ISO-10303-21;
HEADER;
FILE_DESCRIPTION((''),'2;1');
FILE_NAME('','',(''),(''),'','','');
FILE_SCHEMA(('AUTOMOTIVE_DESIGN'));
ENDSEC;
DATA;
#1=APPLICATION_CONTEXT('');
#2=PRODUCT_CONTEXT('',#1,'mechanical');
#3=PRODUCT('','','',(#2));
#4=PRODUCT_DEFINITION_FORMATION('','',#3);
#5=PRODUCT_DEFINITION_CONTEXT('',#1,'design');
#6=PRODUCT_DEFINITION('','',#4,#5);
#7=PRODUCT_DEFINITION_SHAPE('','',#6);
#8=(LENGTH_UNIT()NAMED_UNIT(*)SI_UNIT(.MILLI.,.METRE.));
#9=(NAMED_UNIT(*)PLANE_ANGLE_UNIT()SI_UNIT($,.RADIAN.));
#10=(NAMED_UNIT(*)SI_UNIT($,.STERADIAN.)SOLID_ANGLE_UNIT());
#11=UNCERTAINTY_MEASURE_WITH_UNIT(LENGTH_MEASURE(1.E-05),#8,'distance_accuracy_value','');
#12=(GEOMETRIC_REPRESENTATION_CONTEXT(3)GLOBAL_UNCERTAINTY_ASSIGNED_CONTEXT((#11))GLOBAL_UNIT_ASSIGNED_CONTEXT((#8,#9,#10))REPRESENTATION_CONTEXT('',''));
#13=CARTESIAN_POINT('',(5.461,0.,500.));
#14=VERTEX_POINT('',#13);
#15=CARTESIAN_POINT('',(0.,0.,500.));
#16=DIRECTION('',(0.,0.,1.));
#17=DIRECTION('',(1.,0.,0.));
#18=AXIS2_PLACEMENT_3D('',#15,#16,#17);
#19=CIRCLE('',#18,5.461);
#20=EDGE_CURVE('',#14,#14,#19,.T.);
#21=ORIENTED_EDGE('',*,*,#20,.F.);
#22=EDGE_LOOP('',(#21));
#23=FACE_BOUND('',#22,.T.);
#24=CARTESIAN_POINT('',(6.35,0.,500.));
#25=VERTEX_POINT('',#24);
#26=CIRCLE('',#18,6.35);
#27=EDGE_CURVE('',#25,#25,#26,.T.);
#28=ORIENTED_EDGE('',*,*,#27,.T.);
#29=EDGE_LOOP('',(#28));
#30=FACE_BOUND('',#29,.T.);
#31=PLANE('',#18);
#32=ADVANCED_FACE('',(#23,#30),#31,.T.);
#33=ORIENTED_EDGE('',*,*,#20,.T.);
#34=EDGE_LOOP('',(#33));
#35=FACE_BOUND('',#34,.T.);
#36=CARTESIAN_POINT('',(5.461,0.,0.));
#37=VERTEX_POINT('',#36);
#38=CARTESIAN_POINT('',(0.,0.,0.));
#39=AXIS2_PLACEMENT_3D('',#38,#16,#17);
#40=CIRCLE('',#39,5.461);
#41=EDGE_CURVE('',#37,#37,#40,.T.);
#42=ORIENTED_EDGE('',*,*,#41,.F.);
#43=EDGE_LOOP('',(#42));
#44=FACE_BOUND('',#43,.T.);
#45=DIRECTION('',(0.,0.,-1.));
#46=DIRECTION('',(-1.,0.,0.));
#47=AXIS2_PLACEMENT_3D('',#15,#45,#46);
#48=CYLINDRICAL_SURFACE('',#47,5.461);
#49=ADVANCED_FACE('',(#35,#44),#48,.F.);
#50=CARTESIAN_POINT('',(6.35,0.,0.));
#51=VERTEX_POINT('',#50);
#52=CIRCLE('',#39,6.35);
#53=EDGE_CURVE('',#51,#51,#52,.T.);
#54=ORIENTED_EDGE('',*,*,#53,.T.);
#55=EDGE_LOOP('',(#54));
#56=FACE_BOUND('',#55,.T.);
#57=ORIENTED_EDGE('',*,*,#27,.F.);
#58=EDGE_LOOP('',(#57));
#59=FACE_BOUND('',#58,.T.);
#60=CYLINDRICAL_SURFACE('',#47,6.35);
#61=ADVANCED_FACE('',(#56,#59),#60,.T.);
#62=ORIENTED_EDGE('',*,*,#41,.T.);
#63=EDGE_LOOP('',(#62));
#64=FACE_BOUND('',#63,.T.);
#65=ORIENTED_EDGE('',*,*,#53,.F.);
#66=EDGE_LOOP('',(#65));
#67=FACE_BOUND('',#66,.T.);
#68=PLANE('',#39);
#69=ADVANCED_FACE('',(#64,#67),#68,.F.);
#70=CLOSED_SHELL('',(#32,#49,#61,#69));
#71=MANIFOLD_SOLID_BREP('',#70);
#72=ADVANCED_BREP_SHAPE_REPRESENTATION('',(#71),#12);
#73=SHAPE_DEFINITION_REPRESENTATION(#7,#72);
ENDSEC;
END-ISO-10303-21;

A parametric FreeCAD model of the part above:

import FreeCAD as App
import Part
import Sketcher
from FreeCAD import Vector
Q = App.Units.Quantity

doc = App.newDocument("Part")
body = doc.addObject("PartDesign::Body", "Body")

sketch1 = doc.addObject("Sketcher::SketchObject", "Sketch")
body.addObject(sketch1)
sketch1.AttachmentSupport = (doc.XY_Plane, [""])
sketch1.MapMode = "FlatFace"
sketch1.addGeometry(Part.Circle(Vector(0, 0, 0), Vector(0, 0, 1), 6), False)
sketch1.addGeometry(Part.Circle(Vector(0, 0, 0), Vector(0, 0, 1), 5), False)
sketch1.addConstraint(Sketcher.Constraint("Coincident", 0, 3, -1, 1))
sketch1.addConstraint(Sketcher.Constraint("Coincident", 1, 3, -1, 1))
sketch1.addConstraint(Sketcher.Constraint("Diameter", 0, Q("0.5 in")))
sketch1.addConstraint(Sketcher.Constraint("Diameter", 1, Q("0.43 in")))
pad1 = doc.addObject("PartDesign::Pad", "Pad")
body.addObject(pad1)
pad1.Profile = sketch1
pad1.Length = 500

doc.recompute()
